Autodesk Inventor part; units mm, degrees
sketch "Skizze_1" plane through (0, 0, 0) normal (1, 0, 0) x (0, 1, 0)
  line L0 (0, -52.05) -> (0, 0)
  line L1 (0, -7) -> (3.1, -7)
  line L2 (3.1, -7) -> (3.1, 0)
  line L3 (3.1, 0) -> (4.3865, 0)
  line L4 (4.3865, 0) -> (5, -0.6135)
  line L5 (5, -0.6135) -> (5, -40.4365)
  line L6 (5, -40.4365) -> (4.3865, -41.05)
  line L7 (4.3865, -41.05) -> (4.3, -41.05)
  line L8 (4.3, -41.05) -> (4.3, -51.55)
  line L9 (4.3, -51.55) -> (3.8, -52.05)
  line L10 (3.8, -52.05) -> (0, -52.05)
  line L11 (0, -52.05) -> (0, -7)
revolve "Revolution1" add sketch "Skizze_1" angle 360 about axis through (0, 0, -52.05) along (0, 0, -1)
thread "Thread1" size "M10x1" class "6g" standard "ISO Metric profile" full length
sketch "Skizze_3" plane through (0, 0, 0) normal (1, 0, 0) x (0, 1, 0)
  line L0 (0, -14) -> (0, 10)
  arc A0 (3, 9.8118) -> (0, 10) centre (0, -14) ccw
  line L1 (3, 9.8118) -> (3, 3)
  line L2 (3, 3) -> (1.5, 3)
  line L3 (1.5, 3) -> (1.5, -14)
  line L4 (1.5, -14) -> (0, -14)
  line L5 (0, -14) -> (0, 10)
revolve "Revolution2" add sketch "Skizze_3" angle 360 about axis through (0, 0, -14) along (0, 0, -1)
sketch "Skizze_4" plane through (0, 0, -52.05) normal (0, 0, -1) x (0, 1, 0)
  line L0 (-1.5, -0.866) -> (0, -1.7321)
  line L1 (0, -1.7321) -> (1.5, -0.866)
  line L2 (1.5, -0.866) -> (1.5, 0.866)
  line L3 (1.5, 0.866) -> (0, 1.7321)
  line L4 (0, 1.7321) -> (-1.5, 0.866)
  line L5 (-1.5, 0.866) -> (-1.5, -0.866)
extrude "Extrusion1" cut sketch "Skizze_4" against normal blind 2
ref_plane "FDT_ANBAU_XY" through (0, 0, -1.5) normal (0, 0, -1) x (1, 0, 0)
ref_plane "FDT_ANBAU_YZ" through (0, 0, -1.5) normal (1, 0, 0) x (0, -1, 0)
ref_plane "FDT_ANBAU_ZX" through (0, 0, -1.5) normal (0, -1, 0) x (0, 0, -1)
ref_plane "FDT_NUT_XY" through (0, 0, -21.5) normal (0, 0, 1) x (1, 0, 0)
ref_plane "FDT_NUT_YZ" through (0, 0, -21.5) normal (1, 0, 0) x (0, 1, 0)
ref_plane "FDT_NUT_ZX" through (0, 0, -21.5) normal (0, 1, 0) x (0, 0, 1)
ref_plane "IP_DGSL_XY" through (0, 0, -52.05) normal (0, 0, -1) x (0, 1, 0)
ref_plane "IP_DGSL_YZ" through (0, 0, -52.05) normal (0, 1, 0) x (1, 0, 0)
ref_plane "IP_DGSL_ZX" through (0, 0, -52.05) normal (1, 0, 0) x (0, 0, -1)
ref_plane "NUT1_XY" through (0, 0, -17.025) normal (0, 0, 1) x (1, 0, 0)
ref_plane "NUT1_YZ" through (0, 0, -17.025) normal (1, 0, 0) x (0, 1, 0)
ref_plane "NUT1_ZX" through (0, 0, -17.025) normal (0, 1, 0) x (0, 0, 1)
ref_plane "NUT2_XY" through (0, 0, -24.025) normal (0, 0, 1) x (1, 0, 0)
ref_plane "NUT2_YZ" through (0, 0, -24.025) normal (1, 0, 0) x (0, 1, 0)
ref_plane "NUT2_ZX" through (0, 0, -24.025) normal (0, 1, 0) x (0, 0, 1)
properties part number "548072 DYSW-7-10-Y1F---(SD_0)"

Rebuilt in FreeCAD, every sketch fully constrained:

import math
import FreeCAD as App
import Part
import Sketcher
Q = App.Units.Quantity


def add_polygon(sketch, points):
    """Adds a closed chain of lines whose ends are joined by coincident constraints."""
    first, n = sketch.GeometryCount, len(points)
    for a, b in zip(points, points[1:] + points[:1]):
        sketch.addGeometry(Part.LineSegment(App.Vector(*a, 0), App.Vector(*b, 0)), False)
    for i in range(n):
        sketch.addConstraint(Sketcher.Constraint("Coincident", first + i, 2, first + (i + 1) % n, 1))

doc = App.newDocument("Part")
params = doc.addObject("Spreadsheet::Sheet", "Params")
for row, (alias, value) in enumerate([
    ("sketch1_height", "7 mm"),
    ("sketch1_width", "3.8 mm"),
    ("sketch1_width2", "3.1 mm"),
    ("sketch1_height2", "10.5 mm"),
    ("sketch1_height3", "45.05 mm"),
    ("revolution_angle", "360 deg"),
    ("sketch2_height", "24 mm"),
    ("sketch2_height2", "17 mm"),
    ("sketch2_width", "1.5 mm"),
    ("revolution2_angle", "360 deg"),
    ("pocket1_length", "2 mm"),
], start=1):
    params.set(f"A{row}", alias)
    params.set(f"B{row}", "=" + value)
    params.setAlias(f"B{row}", alias)

body = doc.addObject("PartDesign::Body", "Body")

# Sketch on YZ plane
sketch1 = doc.addObject("Sketcher::SketchObject", "Sketch")
body.addObject(sketch1)
sketch1.AttachmentSupport = (doc.YZ_Plane, [""])
sketch1.MapMode = "FlatFace"
add_polygon(sketch1, [(0, -7), (0, -52.05), (3.8, -52.05), (4.3, -51.55), (4.3, -41.05), (4.39, -41.05), (5, -40.44), (5, -0.61), (4.39, 0), (3.1, 0), (3.1, -7)])  # lines 0-10
sketch1.addConstraint(Sketcher.Constraint("Vertical", 0))
sketch1.addConstraint(Sketcher.Constraint("Horizontal", 1))
sketch1.addConstraint(Sketcher.Constraint("Vertical", 3))
sketch1.addConstraint(Sketcher.Constraint("Horizontal", 4))
sketch1.addConstraint(Sketcher.Constraint("Vertical", 6))
sketch1.addConstraint(Sketcher.Constraint("Horizontal", 8))
sketch1.addConstraint(Sketcher.Constraint("Vertical", 9))
sketch1.addConstraint(Sketcher.Constraint("Horizontal", 10))
sketch1.addConstraint(Sketcher.Constraint("PointOnObject", 0, 2, -2))
sketch1.addConstraint(Sketcher.Constraint("PointOnObject", 7, 2, -1))
sketch1.addConstraint(Sketcher.Constraint("Parallel", 2, 5))
sketch1.addConstraint(Sketcher.Constraint("Perpendicular", 5, 7))
sketch1.addConstraint(Sketcher.Constraint("Vertical", 4, 2, 7, 2))
sketch1.addConstraint(Sketcher.Constraint("Equal", 5, 7))
sketch1.addConstraint(Sketcher.Constraint("DistanceY", 9, 2, 9, 1, Q("7 mm")))
sketch1.addConstraint(Sketcher.Constraint("DistanceX", 1, 1, 1, 2, Q("3.8 mm")))
sketch1.addConstraint(Sketcher.Constraint("DistanceX", 10, 2, 10, 1, Q("3.1 mm")))
sketch1.addConstraint(Sketcher.Constraint("DistanceY", 3, 1, 3, 2, Q("10.5 mm")))
sketch1.addConstraint(Sketcher.Constraint("DistanceX", -1, 1, 5, 2, Q("5 mm")))
sketch1.addConstraint(Sketcher.Constraint("DistanceY", 1, 2, 3, 2, Q("11 mm")))
sketch1.addConstraint(Sketcher.Constraint("DistanceY", 0, 2, 0, 1, Q("45.05 mm")))
sketch1.addConstraint(Sketcher.Constraint("DistanceY", 6, 1, 6, 2, Q("39.823 mm")))
sketch1.setExpression("Constraints[25]", "Params.sketch1_height")
sketch1.setExpression("Constraints[26]", "Params.sketch1_width")
sketch1.setExpression("Constraints[27]", "Params.sketch1_width2")
sketch1.setExpression("Constraints[28]", "Params.sketch1_height2")
sketch1.setExpression("Constraints[31]", "Params.sketch1_height3")
revolution = doc.addObject("PartDesign::Revolution", "Revolution")
body.addObject(revolution)
revolution.Profile = sketch1
revolution.ReferenceAxis = (sketch1, ["V_Axis"])
revolution.setExpression("Angle", "Params.revolution_angle")

# Sketch on YZ plane
sketch2 = doc.addObject("Sketcher::SketchObject", "Sketch001")
body.addObject(sketch2)
sketch2.AttachmentSupport = (doc.YZ_Plane, [""])
sketch2.MapMode = "FlatFace"
sketch2.addGeometry(Part.LineSegment(App.Vector(0, 10, 0), App.Vector(0, -14, 0)), False)
sketch2.addGeometry(Part.LineSegment(App.Vector(0, -14, 0), App.Vector(1.5, -14, 0)), False)
sketch2.addGeometry(Part.LineSegment(App.Vector(1.5, -14, 0), App.Vector(1.5, 3, 0)), False)
sketch2.addGeometry(Part.LineSegment(App.Vector(1.5, 3, 0), App.Vector(3, 3, 0)), False)
sketch2.addGeometry(Part.LineSegment(App.Vector(3, 3, 0), App.Vector(3, 9.8, 0)), False)
sketch2.addGeometry(Part.ArcOfCircle(Part.Circle(App.Vector(0, -14, 0), App.Vector(0, 0, 1), 24), math.radians(82.82), math.radians(90)), False)
sketch2.addConstraint(Sketcher.Constraint("Coincident", 0, 2, 1, 1))
sketch2.addConstraint(Sketcher.Constraint("Coincident", 1, 2, 2, 1))
sketch2.addConstraint(Sketcher.Constraint("Coincident", 2, 2, 3, 1))
sketch2.addConstraint(Sketcher.Constraint("Coincident", 3, 2, 4, 1))
sketch2.addConstraint(Sketcher.Constraint("Coincident", 4, 2, 5, 1))
sketch2.addConstraint(Sketcher.Constraint("Coincident", 5, 2, 0, 1))
sketch2.addConstraint(Sketcher.Constraint("Vertical", 0))
sketch2.addConstraint(Sketcher.Constraint("Horizontal", 1))
sketch2.addConstraint(Sketcher.Constraint("Vertical", 2))
sketch2.addConstraint(Sketcher.Constraint("Horizontal", 3))
sketch2.addConstraint(Sketcher.Constraint("Vertical", 4))
sketch2.addConstraint(Sketcher.Constraint("PointOnObject", 0, 2, -2))
sketch2.addConstraint(Sketcher.Constraint("Equal", 1, 3))
sketch2.addConstraint(Sketcher.Constraint("DistanceY", 0, 2, 0, 1, Q("24 mm")))
sketch2.addConstraint(Sketcher.Constraint("DistanceY", 2, 1, 2, 2, Q("17 mm")))
sketch2.addConstraint(Sketcher.Constraint("DistanceX", 1, 1, 1, 2, Q("1.5 mm")))
sketch2.addConstraint(Sketcher.Constraint("DistanceY", 0, 2, -1, 1, Q("14 mm")))
sketch2.addConstraint(Sketcher.Constraint("Radius", 5, Q("23.9904 mm")))
sketch2.addConstraint(Sketcher.Constraint("DistanceY", 4, 1, 4, 2, Q("6.8118 mm")))
sketch2.setExpression("Constraints[13]", "Params.sketch2_height")
sketch2.setExpression("Constraints[14]", "Params.sketch2_height2")
sketch2.setExpression("Constraints[15]", "Params.sketch2_width")
revolution2 = doc.addObject("PartDesign::Revolution", "Revolution001")
body.addObject(revolution2)
revolution2.Profile = sketch2
revolution2.ReferenceAxis = (sketch2, ["V_Axis"])
revolution2.setExpression("Angle", "Params.revolution2_angle")

# Sketch on XY plane
sketch3 = doc.addObject("Sketcher::SketchObject", "Sketch002")
body.addObject(sketch3)
sketch3.AttachmentSupport = (doc.XY_Plane, [""])
sketch3.MapMode = "FlatFace"
sketch3.AttachmentOffset = App.Placement(App.Vector(0, 0, -52.05), App.Rotation())
add_polygon(sketch3, [(0.9, -1.5), (-0.9, -1.5), (-1.7, 0), (-0.9, 1.5), (0.9, 1.5), (1.7, 0)])  # lines 0-5
sketch3.addConstraint(Sketcher.Constraint("Horizontal", 0))
sketch3.addConstraint(Sketcher.Constraint("Horizontal", 3))
sketch3.addConstraint(Sketcher.Constraint("Symmetric", 0, 2, 3, 2, -1, 1))
sketch3.addConstraint(Sketcher.Constraint("Symmetric", 1, 2, 4, 2, -1, 1))
sketch3.addConstraint(Sketcher.Constraint("PointOnObject", 1, 2, -1))
sketch3.addConstraint(Sketcher.Constraint("Parallel", 2, 5))
sketch3.addConstraint(Sketcher.Constraint("Vertical", 0, 2, 2, 2))
sketch3.addConstraint(Sketcher.Constraint("DistanceY", 0, 2, 2, 2, Q("3 mm")))
sketch3.addConstraint(Sketcher.Constraint("DistanceX", 0, 2, 0, 1, Q("1.732 mm")))
sketch3.addConstraint(Sketcher.Constraint("Distance", 1, Q("1.732 mm")))
pocket1 = doc.addObject("PartDesign::Pocket", "Pocket")
body.addObject(pocket1)
pocket1.Profile = sketch3
pocket1.setExpression("Length", "Params.pocket1_length")
pocket1.Reversed = True

doc.recompute()
